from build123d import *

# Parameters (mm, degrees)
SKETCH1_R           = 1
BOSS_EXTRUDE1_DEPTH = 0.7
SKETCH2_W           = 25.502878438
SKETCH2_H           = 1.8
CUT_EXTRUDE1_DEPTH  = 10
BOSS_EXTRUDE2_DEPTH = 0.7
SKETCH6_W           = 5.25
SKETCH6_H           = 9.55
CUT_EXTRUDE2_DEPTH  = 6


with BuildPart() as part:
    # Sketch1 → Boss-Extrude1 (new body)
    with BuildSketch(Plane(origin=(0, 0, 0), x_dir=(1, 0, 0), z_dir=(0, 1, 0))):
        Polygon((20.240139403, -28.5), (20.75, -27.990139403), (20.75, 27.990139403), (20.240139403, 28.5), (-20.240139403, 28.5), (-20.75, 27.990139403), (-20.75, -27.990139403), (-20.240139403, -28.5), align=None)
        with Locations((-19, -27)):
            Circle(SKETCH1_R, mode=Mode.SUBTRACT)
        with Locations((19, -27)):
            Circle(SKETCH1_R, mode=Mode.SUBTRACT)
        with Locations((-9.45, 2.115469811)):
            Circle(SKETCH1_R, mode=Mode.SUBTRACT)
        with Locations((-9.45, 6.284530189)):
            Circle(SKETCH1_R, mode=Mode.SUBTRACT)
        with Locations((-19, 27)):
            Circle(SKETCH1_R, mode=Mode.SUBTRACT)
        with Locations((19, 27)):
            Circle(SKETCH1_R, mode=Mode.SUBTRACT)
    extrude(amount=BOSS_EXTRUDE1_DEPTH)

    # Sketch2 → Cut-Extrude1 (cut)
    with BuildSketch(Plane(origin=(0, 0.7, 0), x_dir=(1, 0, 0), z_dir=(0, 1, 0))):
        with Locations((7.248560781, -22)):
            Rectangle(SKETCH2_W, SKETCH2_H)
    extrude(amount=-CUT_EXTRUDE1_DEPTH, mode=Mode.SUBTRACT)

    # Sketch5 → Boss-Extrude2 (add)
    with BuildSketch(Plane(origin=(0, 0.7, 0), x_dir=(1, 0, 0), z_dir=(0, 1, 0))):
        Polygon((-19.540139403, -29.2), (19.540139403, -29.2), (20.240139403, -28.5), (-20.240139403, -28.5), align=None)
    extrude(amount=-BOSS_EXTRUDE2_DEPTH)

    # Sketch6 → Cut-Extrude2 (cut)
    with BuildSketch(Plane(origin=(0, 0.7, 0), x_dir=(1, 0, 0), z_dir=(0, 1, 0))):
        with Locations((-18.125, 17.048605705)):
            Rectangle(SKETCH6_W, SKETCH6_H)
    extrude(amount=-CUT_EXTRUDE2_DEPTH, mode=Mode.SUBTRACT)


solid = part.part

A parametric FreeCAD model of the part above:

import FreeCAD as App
import Part
import Sketcher
from FreeCAD import Vector
Q = App.Units.Quantity


def add_polygon(sketch, points):
    """Adds a closed chain of lines whose ends are joined by coincident constraints."""
    first, n = sketch.GeometryCount, len(points)
    for a, b in zip(points, points[1:] + points[:1]):
        sketch.addGeometry(Part.LineSegment(App.Vector(*a, 0), App.Vector(*b, 0)), False)
    for i in range(n):
        sketch.addConstraint(Sketcher.Constraint("Coincident", first + i, 2, first + (i + 1) % n, 1))

doc = App.newDocument("Part")
params = doc.addObject("Spreadsheet::Sheet", "Params")
for row, (alias, value) in enumerate([
    ("sketch1_diameter", "2 mm"),
    ("pad1_length", "0.7 mm"),
    ("sketch2_height", "1.8 mm"),
    ("pocket1_length", "10 mm"),
    ("pad2_length", "0.7 mm"),
    ("sketch4_width", "5.25 mm"),
    ("sketch4_height", "9.55 mm"),
    ("pocket2_length", "6 mm"),
], start=1):
    params.set(f"A{row}", alias)
    params.set(f"B{row}", "=" + value)
    params.setAlias(f"B{row}", alias)

body = doc.addObject("PartDesign::Body", "Body")

# Sketch on XZ plane
sketch1 = body.newObject("Sketcher::SketchObject", "Sketch")
sketch1.AttachmentSupport = (doc.getObject("XZ_Plane"), [""])
sketch1.MapMode = "FlatFace"
add_polygon(sketch1, [(20.240139, 28.5), (20.75, 27.990139), (20.75, -27.990139), (20.240139, -28.5), (-20.240139, -28.5), (-20.75, -27.990139), (-20.75, 27.990139), (-20.240139, 28.5)])  # lines 0-7
sketch1.addGeometry(Part.Circle(Vector(-19, 27, 0), Vector(0, 0, 1), 1), False)  # 8
sketch1.addGeometry(Part.Circle(Vector(19, 27, 0), Vector(0, 0, 1), 1), False)  # 9
sketch1.addGeometry(Part.Circle(Vector(-9.45, -2.11547, 0), Vector(0, 0, 1), 1), False)  # 10
sketch1.addGeometry(Part.Circle(Vector(-9.45, -6.28453, 0), Vector(0, 0, 1), 1), False)  # 11
sketch1.addGeometry(Part.Circle(Vector(-19, -27, 0), Vector(0, 0, 1), 1), False)  # 12
sketch1.addGeometry(Part.Circle(Vector(19, -27, 0), Vector(0, 0, 1), 1), False)  # 13
sketch1.addConstraint(Sketcher.Constraint("Vertical", 1))
sketch1.addConstraint(Sketcher.Constraint("Horizontal", 3))
sketch1.addConstraint(Sketcher.Constraint("Vertical", 5))
sketch1.addConstraint(Sketcher.Constraint("Horizontal", 7))
sketch1.addConstraint(Sketcher.Constraint("Equal", 8, 9))
sketch1.addConstraint(Sketcher.Constraint("Equal", 9, 10))
sketch1.addConstraint(Sketcher.Constraint("Equal", 10, 11))
sketch1.addConstraint(Sketcher.Constraint("Equal", 11, 12))
sketch1.addConstraint(Sketcher.Constraint("Equal", 12, 13))
sketch1.addConstraint(Sketcher.Constraint("Symmetric", 9, 3, 12, 3, -1, 1))
sketch1.addConstraint(Sketcher.Constraint("Symmetric", 8, 3, 13, 3, -1, 1))
sketch1.addConstraint(Sketcher.Constraint("Symmetric", 0, 2, 4, 2, -1, 1))
sketch1.addConstraint(Sketcher.Constraint("Symmetric", 2, 2, 6, 2, -1, 1))
sketch1.addConstraint(Sketcher.Constraint("Symmetric", 8, 3, 9, 3, -2))
sketch1.addConstraint(Sketcher.Constraint("Perpendicular", 0, 2))
sketch1.addConstraint(Sketcher.Constraint("Perpendicular", 2, 4))
sketch1.addConstraint(Sketcher.Constraint("Perpendicular", 4, 6))
sketch1.addConstraint(Sketcher.Constraint("Horizontal", 1, 2, 4, 2))
sketch1.addConstraint(Sketcher.Constraint("Vertical", 10, 3, 11, 3))
sketch1.addConstraint(Sketcher.Constraint("Vertical", 3, 2, 6, 2))
sketch1.addConstraint(Sketcher.Constraint("Diameter", 8, Q("2 mm")))
sketch1.addConstraint(Sketcher.Constraint("DistanceX", 8, 3, -1, 1, Q("19 mm")))
sketch1.addConstraint(Sketcher.Constraint("DistanceY", -1, 1, 8, 3, Q("27 mm")))
sketch1.addConstraint(Sketcher.Constraint("DistanceY", 2, 2, -1, 1, Q("28.5 mm")))
sketch1.addConstraint(Sketcher.Constraint("DistanceX", 10, 3, 0, 2, Q("30.2 mm")))
sketch1.addConstraint(Sketcher.Constraint("DistanceX", 4, 2, 11, 3, Q("11.3 mm")))
sketch1.addConstraint(Sketcher.Constraint("DistanceX", 3, 2, 3, 1, Q("40.480279 mm")))
sketch1.addConstraint(Sketcher.Constraint("DistanceY", 10, 3, -1, 1, Q("2.11547 mm")))
sketch1.addConstraint(Sketcher.Constraint("DistanceY", 11, 3, -1, 1, Q("6.28453 mm")))
sketch1.setExpression("Constraints[28]", "Params.sketch1_diameter")
pad1 = body.newObject("PartDesign::Pad", "Pad")
pad1.Profile = sketch1
pad1.setExpression("Length", "Params.pad1_length")
pad1.Reversed = True

# Sketch on XZ plane
sketch2 = body.newObject("Sketcher::SketchObject", "Sketch001")
sketch2.AttachmentSupport = (doc.getObject("XZ_Plane"), [""])
sketch2.MapMode = "FlatFace"
sketch2.AttachmentOffset = App.Placement(Vector(0, 0, -0.7), App.Rotation())
add_polygon(sketch2, [(-5.502878, 21.1), (-5.502878, 22.9), (20, 22.9), (20, 21.1)])  # lines 0-3
sketch2.addConstraint(Sketcher.Constraint("Vertical", 0))
sketch2.addConstraint(Sketcher.Constraint("Horizontal", 1))
sketch2.addConstraint(Sketcher.Constraint("Vertical", 2))
sketch2.addConstraint(Sketcher.Constraint("Horizontal", 3))
sketch2.addConstraint(Sketcher.Constraint("DistanceY", 0, 1, 0, 2, Q("1.8 mm")))
sketch2.addConstraint(Sketcher.Constraint("DistanceX", -1, 1, 1, 2, Q("20 mm")))
sketch2.addConstraint(Sketcher.Constraint("DistanceY", -1, 1, 0, 2, Q("22.9 mm")))
sketch2.addConstraint(Sketcher.Constraint("DistanceX", 1, 1, 1, 2, Q("25.502878 mm")))
sketch2.setExpression("Constraints[8]", "Params.sketch2_height")
pocket1 = body.newObject("PartDesign::Pocket", "Pocket")
pocket1.Profile = sketch2
pocket1.setExpression("Length", "Params.pocket1_length")
pocket1.Reversed = True

# Sketch on XZ plane
sketch3 = body.newObject("Sketcher::SketchObject", "Sketch002")
sketch3.AttachmentSupport = (doc.getObject("XZ_Plane"), [""])
sketch3.MapMode = "FlatFace"
sketch3.AttachmentOffset = App.Placement(Vector(0, 0, -0.7), App.Rotation())
add_polygon(sketch3, [(-19.540139, 29.2), (19.540139, 29.2), (20.240139, 28.5), (-20.240139, 28.5)])  # lines 0-3
sketch3.addConstraint(Sketcher.Constraint("Horizontal", 0))
sketch3.addConstraint(Sketcher.Constraint("Horizontal", 2))
sketch3.addConstraint(Sketcher.Constraint("Perpendicular", 1, 3))
sketch3.addConstraint(Sketcher.Constraint("Equal", 1, 3))
sketch3.addConstraint(Sketcher.Constraint("DistanceY", -1, 1, 0, 2, Q("29.2 mm")))
sketch3.addConstraint(Sketcher.Constraint("DistanceY", -1, 1, 1, 2, Q("28.5 mm")))
sketch3.addConstraint(Sketcher.Constraint("DistanceX", 0, 1, 0, 2, Q("39.080279 mm")))
sketch3.addConstraint(Sketcher.Constraint("DistanceX", -1, 1, 0, 2, Q("19.540139 mm")))
pad2 = body.newObject("PartDesign::Pad", "Pad001")
pad2.Profile = sketch3
pad2.setExpression("Length", "Params.pad2_length")

# Sketch on XZ plane
sketch4 = body.newObject("Sketcher::SketchObject", "Sketch003")
sketch4.AttachmentSupport = (doc.getObject("XZ_Plane"), [""])
sketch4.MapMode = "FlatFace"
sketch4.AttachmentOffset = App.Placement(Vector(0, 0, -0.7), App.Rotation())
add_polygon(sketch4, [(-20.75, -21.823606), (-20.75, -12.273606), (-15.5, -12.273606), (-15.5, -21.823606)])  # lines 0-3
sketch4.addConstraint(Sketcher.Constraint("Vertical", 0))
sketch4.addConstraint(Sketcher.Constraint("Horizontal", 1))
sketch4.addConstraint(Sketcher.Constraint("Vertical", 2))
sketch4.addConstraint(Sketcher.Constraint("Horizontal", 3))
sketch4.addConstraint(Sketcher.Constraint("DistanceX", 1, 1, 1, 2, Q("5.25 mm")))
sketch4.addConstraint(Sketcher.Constraint("DistanceY", 0, 1, 0, 2, Q("9.55 mm")))
sketch4.addConstraint(Sketcher.Constraint("DistanceX", 1, 2, -1, 1, Q("15.5 mm")))
sketch4.addConstraint(Sketcher.Constraint("DistanceY", 0, 2, -1, 1, Q("12.273606 mm")))
sketch4.setExpression("Constraints[8]", "Params.sketch4_width")
sketch4.setExpression("Constraints[9]", "Params.sketch4_height")
pocket2 = body.newObject("PartDesign::Pocket", "Pocket001")
pocket2.Profile = sketch4
pocket2.setExpression("Length", "Params.pocket2_length")
pocket2.Reversed = True

doc.recompute()
